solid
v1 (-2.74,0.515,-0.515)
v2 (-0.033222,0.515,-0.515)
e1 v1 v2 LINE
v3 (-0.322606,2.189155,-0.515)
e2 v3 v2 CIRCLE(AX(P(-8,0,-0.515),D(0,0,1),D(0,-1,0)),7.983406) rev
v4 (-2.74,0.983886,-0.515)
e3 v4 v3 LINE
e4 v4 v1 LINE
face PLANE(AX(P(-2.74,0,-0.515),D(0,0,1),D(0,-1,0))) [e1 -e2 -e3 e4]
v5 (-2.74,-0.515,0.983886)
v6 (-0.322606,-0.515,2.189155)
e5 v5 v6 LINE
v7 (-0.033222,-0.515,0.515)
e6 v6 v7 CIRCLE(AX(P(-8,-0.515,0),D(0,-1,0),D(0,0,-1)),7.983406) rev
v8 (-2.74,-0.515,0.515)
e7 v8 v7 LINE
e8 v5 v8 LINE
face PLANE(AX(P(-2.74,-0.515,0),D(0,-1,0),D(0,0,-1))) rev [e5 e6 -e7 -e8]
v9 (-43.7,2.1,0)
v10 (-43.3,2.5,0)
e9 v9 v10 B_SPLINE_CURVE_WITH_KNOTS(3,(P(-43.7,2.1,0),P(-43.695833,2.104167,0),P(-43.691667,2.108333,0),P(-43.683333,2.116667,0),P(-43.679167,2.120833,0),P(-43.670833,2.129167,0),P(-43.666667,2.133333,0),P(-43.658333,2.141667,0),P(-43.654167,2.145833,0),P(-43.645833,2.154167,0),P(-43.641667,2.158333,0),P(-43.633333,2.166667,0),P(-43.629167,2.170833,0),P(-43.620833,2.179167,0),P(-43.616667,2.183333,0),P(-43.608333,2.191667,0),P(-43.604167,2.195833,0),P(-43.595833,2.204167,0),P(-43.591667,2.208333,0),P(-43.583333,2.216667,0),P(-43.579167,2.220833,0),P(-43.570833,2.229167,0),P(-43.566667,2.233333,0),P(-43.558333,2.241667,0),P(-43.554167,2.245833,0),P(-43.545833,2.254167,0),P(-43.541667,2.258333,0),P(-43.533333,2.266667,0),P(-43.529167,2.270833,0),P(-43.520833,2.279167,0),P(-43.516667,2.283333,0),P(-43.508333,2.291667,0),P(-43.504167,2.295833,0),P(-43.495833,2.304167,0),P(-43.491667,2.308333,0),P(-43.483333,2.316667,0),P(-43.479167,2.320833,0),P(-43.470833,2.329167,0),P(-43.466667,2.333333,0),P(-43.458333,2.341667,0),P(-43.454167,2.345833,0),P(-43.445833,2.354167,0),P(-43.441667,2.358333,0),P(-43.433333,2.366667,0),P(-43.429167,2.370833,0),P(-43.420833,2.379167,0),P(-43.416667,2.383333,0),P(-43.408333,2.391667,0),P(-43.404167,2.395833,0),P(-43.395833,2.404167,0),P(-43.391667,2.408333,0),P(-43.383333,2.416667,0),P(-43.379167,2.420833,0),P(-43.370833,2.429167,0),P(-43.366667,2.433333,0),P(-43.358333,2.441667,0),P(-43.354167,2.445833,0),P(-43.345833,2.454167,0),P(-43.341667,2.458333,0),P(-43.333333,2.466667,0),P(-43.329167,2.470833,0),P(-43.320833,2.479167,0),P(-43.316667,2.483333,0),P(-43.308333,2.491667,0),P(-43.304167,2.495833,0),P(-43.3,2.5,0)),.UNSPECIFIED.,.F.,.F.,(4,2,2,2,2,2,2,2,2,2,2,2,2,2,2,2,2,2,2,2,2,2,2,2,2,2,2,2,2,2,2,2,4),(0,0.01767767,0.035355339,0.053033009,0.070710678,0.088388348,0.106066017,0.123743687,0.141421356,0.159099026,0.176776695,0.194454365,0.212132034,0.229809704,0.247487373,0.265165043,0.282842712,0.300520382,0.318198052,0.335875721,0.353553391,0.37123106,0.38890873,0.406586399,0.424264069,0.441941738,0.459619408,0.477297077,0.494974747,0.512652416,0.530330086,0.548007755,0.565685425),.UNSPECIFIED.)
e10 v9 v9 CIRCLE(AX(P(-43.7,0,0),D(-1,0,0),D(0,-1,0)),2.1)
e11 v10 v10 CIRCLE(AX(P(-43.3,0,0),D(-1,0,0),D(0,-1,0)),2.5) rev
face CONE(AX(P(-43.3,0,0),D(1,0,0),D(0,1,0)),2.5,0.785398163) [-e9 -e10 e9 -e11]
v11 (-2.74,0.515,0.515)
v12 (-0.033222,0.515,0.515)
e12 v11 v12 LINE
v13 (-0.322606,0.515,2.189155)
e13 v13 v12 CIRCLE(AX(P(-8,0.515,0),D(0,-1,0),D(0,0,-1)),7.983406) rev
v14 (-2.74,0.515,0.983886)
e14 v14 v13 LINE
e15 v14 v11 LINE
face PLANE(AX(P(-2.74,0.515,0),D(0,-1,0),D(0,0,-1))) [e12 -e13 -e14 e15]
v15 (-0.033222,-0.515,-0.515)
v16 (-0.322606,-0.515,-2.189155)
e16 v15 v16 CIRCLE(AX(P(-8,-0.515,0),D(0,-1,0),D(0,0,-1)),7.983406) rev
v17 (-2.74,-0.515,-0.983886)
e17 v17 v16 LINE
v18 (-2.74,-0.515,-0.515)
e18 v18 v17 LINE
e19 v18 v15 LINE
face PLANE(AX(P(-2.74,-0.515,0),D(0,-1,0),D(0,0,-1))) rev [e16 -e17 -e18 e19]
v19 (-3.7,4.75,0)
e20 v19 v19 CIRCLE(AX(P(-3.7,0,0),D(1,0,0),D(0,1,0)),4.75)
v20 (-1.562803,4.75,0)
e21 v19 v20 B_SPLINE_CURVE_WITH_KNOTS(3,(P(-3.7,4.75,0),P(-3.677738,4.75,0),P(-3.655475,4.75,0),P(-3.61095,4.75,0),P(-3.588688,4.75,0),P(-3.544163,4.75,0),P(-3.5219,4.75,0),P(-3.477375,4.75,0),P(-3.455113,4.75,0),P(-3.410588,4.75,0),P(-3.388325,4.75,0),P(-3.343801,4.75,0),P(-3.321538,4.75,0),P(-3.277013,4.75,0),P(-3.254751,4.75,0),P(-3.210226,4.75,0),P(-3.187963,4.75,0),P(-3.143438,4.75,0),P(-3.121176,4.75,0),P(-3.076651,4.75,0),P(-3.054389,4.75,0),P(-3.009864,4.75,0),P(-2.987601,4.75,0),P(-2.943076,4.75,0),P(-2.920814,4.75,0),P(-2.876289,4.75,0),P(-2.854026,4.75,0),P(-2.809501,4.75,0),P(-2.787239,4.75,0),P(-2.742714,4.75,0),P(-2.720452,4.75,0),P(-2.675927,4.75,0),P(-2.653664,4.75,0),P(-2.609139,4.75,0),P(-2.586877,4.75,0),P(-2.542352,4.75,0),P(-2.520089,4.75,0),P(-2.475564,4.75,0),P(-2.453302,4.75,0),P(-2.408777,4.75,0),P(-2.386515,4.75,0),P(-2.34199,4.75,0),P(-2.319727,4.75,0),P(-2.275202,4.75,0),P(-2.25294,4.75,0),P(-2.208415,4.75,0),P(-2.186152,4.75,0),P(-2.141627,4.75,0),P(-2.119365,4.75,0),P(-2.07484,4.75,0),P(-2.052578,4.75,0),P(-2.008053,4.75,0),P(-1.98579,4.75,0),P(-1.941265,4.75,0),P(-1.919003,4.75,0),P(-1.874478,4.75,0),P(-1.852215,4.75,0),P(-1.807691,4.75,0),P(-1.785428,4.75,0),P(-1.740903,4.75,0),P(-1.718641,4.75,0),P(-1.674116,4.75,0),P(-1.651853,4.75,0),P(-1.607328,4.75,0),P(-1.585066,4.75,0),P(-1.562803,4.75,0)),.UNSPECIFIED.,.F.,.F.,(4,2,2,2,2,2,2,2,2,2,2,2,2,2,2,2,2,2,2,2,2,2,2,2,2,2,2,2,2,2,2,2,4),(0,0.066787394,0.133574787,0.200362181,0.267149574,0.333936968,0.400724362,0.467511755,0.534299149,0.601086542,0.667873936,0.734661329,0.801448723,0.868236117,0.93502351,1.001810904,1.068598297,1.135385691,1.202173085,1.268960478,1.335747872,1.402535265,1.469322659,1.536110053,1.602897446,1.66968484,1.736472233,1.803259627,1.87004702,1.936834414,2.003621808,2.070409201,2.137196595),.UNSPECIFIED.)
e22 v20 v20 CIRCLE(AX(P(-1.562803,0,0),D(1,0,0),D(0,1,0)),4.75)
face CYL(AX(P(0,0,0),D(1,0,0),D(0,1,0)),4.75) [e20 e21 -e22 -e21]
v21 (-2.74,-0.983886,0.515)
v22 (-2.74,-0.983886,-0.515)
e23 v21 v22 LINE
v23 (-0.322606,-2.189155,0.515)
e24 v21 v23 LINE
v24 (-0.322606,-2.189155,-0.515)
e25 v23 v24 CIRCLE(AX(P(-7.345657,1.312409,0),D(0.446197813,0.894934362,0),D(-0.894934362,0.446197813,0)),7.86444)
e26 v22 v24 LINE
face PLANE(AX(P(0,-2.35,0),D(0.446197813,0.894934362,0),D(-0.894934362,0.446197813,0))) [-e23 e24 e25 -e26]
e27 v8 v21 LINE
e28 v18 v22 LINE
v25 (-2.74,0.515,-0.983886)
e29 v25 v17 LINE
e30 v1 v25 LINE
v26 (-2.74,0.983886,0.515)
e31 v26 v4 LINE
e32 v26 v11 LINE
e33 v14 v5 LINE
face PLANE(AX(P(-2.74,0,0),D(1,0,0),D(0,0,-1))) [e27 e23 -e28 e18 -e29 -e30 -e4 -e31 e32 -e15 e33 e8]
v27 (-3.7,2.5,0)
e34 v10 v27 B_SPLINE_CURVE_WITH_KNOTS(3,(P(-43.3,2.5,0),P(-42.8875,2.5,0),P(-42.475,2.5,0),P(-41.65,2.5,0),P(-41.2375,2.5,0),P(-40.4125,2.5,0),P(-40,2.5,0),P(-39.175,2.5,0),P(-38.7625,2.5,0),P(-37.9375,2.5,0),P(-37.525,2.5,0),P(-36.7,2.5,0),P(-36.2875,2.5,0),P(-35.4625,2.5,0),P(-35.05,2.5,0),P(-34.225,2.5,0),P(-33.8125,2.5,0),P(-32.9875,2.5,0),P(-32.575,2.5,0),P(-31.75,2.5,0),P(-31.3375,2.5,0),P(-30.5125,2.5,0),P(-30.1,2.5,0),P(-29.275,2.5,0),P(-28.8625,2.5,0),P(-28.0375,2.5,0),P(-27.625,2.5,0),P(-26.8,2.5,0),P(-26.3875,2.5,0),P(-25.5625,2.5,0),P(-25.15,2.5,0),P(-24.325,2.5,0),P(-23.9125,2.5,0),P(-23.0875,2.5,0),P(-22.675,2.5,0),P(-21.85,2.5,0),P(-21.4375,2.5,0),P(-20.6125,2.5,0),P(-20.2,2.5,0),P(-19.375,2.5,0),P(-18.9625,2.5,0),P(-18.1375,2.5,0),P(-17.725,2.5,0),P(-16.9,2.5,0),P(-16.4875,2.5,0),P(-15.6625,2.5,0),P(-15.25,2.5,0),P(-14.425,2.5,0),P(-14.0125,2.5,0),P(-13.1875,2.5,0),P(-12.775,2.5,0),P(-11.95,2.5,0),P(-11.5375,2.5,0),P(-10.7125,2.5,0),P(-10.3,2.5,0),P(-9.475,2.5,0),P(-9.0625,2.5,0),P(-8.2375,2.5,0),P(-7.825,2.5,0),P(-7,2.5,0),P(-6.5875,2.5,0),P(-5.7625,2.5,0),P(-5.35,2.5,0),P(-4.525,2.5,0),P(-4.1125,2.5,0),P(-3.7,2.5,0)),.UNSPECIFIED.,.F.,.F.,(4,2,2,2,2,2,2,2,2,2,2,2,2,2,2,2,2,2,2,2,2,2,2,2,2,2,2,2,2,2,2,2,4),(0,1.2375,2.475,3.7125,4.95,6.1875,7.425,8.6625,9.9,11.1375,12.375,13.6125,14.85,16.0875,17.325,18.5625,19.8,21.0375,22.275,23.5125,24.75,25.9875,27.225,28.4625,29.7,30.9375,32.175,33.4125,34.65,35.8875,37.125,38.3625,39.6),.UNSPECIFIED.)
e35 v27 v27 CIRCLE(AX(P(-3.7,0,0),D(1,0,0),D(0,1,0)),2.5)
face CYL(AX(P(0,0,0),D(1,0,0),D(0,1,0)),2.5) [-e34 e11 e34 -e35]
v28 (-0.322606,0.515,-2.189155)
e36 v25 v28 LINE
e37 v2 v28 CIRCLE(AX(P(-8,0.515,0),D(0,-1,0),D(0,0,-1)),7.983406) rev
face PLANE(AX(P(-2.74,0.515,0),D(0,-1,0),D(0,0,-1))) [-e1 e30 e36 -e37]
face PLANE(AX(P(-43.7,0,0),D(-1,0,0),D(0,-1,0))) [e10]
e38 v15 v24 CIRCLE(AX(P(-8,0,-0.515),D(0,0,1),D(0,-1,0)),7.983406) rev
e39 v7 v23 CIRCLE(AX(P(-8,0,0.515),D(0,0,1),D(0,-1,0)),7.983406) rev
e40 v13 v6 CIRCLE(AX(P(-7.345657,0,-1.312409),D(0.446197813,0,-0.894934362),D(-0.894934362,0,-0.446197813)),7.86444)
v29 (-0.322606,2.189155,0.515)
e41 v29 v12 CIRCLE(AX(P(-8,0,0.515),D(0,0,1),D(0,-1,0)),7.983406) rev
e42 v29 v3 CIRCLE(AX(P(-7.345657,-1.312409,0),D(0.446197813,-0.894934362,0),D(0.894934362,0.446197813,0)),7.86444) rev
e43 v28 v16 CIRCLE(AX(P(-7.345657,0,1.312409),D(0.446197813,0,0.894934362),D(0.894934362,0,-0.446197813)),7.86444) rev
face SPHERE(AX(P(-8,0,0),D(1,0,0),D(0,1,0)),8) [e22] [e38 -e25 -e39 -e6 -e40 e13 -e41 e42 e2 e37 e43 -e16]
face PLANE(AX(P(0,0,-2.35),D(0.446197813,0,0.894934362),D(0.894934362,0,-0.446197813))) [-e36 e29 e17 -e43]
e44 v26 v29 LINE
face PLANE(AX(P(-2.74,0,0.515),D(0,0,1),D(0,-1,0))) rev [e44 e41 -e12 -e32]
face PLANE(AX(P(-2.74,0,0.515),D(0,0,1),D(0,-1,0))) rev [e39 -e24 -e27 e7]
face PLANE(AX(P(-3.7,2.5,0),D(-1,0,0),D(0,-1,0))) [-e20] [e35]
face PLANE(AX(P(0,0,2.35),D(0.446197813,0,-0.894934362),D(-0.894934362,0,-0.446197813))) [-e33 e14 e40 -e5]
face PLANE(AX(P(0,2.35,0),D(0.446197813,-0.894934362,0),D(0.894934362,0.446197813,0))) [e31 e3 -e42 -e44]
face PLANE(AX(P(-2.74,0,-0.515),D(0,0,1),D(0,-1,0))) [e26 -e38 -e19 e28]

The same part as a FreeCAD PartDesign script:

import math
import FreeCAD as App
import Part
import Sketcher
from FreeCAD import Vector
Q = App.Units.Quantity


def edges_at(feature, points):
    """Names of the edges that pass closest to the given points."""
    edges = feature.Shape.Edges
    near = lambda p: min(range(len(edges)), key=lambda i: edges[i].distToShape(Part.Vertex(*p))[0])
    return sorted({f"Edge{near(p) + 1}" for p in points})


def faces_at(feature, points):
    """Names of the faces that lie closest to the given points."""
    faces = feature.Shape.Faces
    near = lambda p: min(range(len(faces)), key=lambda i: faces[i].distToShape(Part.Vertex(*p))[0])
    return sorted({f"Face{near(p) + 1}" for p in points})

doc = App.newDocument("Part")
params = doc.addObject("Spreadsheet::Sheet", "Params")
for row, (alias, value) in enumerate([
    ("sketch1_radius", "8 mm"),
    ("sketch1_width", "40 mm"),
    ("sketch1_width2", "43.7 mm"),
    ("sketch1_height", "2.5 mm"),
    ("sketch1_height2", "2.25 mm"),
    ("revolution_angle", "360 deg"),
    ("sketch2_width", "1.03 mm"),
    ("pocket1_length", "2.74 mm"),
    ("chamfer_size", "0.4 mm"),
    ("draft_angle", "26.5 deg"),
], start=1):
    params.set(f"A{row}", alias)
    params.set(f"B{row}", "=" + value)
    params.setAlias(f"B{row}", alias)

body = doc.addObject("PartDesign::Body", "Body")

# Sketch on XY plane
sketch1 = body.newObject("Sketcher::SketchObject", "Sketch")
sketch1.AttachmentSupport = (doc.getObject("XY_Plane"), [""])
sketch1.MapMode = "FlatFace"
sketch1.addGeometry([
    Part.LineSegment(Vector(-43.7, 2.5, 0), Vector(-43.7, 0, 0)),  # 0
    Part.LineSegment(Vector(-43.7, 0, 0), Vector(0, 0, 0)),  # 1
    Part.ArcOfCircle(Part.Circle(Vector(-8, 0, 0), Vector(0, 0, 1), 8), math.radians(0), math.radians(36)),  # 2
    Part.LineSegment(Vector(-1.6, 4.8, 0), Vector(-3.7, 4.8, 0)),  # 3
    Part.LineSegment(Vector(-3.7, 4.8, 0), Vector(-3.7, 2.5, 0)),  # 4
    Part.LineSegment(Vector(-3.7, 2.5, 0), Vector(-43.7, 2.5, 0)),  # 5
], False)
sketch1.addConstraint([
    Sketcher.Constraint("Coincident", 0, 2, 1, 1),
    Sketcher.Constraint("Coincident", 1, 2, 2, 1),
    Sketcher.Constraint("Coincident", 2, 2, 3, 1),
    Sketcher.Constraint("Coincident", 3, 2, 4, 1),
    Sketcher.Constraint("Coincident", 4, 2, 5, 1),
    Sketcher.Constraint("Coincident", 5, 2, 0, 1),
    Sketcher.Constraint("Vertical", 0),
    Sketcher.Constraint("Horizontal", 1),
    Sketcher.Constraint("Horizontal", 3),
    Sketcher.Constraint("Vertical", 4),
    Sketcher.Constraint("Horizontal", 5),
    Sketcher.Constraint("Coincident", 1, 2, -1, 1),
    Sketcher.Constraint("PointOnObject", 2, 3, -1),
    Sketcher.Constraint("Radius", 2, Q("8 mm")),
    Sketcher.Constraint("DistanceX", 5, 2, 5, 1, Q("40 mm")),
    Sketcher.Constraint("DistanceX", 1, 1, 1, 2, Q("43.7 mm")),
    Sketcher.Constraint("DistanceY", 0, 2, 0, 1, Q("2.5 mm")),
    Sketcher.Constraint("DistanceY", 4, 2, 4, 1, Q("2.25 mm")),
])
sketch1.setExpression("Constraints[13]", "Params.sketch1_radius")
sketch1.setExpression("Constraints[14]", "Params.sketch1_width")
sketch1.setExpression("Constraints[15]", "Params.sketch1_width2")
sketch1.setExpression("Constraints[16]", "Params.sketch1_height")
sketch1.setExpression("Constraints[17]", "Params.sketch1_height2")
revolution = body.newObject("PartDesign::Revolution", "Revolution")
revolution.Profile = sketch1
revolution.ReferenceAxis = (sketch1, ["H_Axis"])
revolution.setExpression("Angle", "Params.revolution_angle")

# Sketch on YZ plane
sketch2 = body.newObject("Sketcher::SketchObject", "Sketch001")
sketch2.AttachmentSupport = (doc.getObject("YZ_Plane"), [""])
sketch2.MapMode = "FlatFace"
sketch2.addGeometry([
    Part.LineSegment(Vector(0.5, 2.4, 0), Vector(-0.5, 2.4, 0)),  # 0
    Part.LineSegment(Vector(-0.5, 2.4, 0), Vector(-0.5, 0.5, 0)),  # 1
    Part.LineSegment(Vector(-0.5, 0.5, 0), Vector(-2.4, 0.5, 0)),  # 2
    Part.LineSegment(Vector(-2.4, 0.5, 0), Vector(-2.4, -0.5, 0)),  # 3
    Part.LineSegment(Vector(-2.4, -0.5, 0), Vector(-0.5, -0.5, 0)),  # 4
    Part.LineSegment(Vector(-0.5, -0.5, 0), Vector(-0.5, -2.4, 0)),  # 5
    Part.LineSegment(Vector(-0.5, -2.4, 0), Vector(0.5, -2.4, 0)),  # 6
    Part.LineSegment(Vector(0.5, -2.4, 0), Vector(0.5, -0.5, 0)),  # 7
    Part.LineSegment(Vector(0.5, -0.5, 0), Vector(2.4, -0.5, 0)),  # 8
    Part.LineSegment(Vector(2.4, -0.5, 0), Vector(2.4, 0.5, 0)),  # 9
    Part.LineSegment(Vector(2.4, 0.5, 0), Vector(0.5, 0.5, 0)),  # 10
    Part.LineSegment(Vector(0.5, 0.5, 0), Vector(0.5, 2.4, 0)),  # 11
], False)
sketch2.addConstraint([
    Sketcher.Constraint("Coincident", 0, 2, 1, 1),
    Sketcher.Constraint("Coincident", 1, 2, 2, 1),
    Sketcher.Constraint("Coincident", 2, 2, 3, 1),
    Sketcher.Constraint("Coincident", 3, 2, 4, 1),
    Sketcher.Constraint("Coincident", 4, 2, 5, 1),
    Sketcher.Constraint("Coincident", 5, 2, 6, 1),
    Sketcher.Constraint("Coincident", 6, 2, 7, 1),
    Sketcher.Constraint("Coincident", 7, 2, 8, 1),
    Sketcher.Constraint("Coincident", 8, 2, 9, 1),
    Sketcher.Constraint("Coincident", 9, 2, 10, 1),
    Sketcher.Constraint("Coincident", 10, 2, 11, 1),
    Sketcher.Constraint("Coincident", 11, 2, 0, 1),
    Sketcher.Constraint("Horizontal", 0),
    Sketcher.Constraint("Vertical", 1),
    Sketcher.Constraint("Horizontal", 2),
    Sketcher.Constraint("Vertical", 3),
    Sketcher.Constraint("Horizontal", 4),
    Sketcher.Constraint("Vertical", 5),
    Sketcher.Constraint("Horizontal", 6),
    Sketcher.Constraint("Vertical", 7),
    Sketcher.Constraint("Horizontal", 8),
    Sketcher.Constraint("Vertical", 9),
    Sketcher.Constraint("Horizontal", 10),
    Sketcher.Constraint("Vertical", 11),
    Sketcher.Constraint("Symmetric", 0, 2, 6, 2, -1, 1),
    Sketcher.Constraint("Symmetric", 2, 2, 8, 2, -1, 1),
    Sketcher.Constraint("Symmetric", 4, 2, 10, 2, -1, 1),
    Sketcher.Constraint("Symmetric", 4, 2, 7, 2, -2),
    Sketcher.Constraint("Equal", 10, 1),
    Sketcher.Constraint("Equal", 6, 3),
    Sketcher.Constraint("DistanceX", 0, 2, 0, 1, Q("1.03 mm")),
    Sketcher.Constraint("DistanceY", 5, 2, 0, 2, Q("4.7 mm")),
])
sketch2.setExpression("Constraints[30]", "Params.sketch2_width")
pocket1 = body.newObject("PartDesign::Pocket", "Pocket")
pocket1.Profile = sketch2
pocket1.setExpression("Length", "Params.pocket1_length")
doc.recompute()

chamfer = body.newObject("PartDesign::Chamfer", "Chamfer")
chamfer.Base = (pocket1, edges_at(pocket1, [(-43.7, -2.5, 0)]))
chamfer.setExpression("Size", "Params.chamfer_size")
doc.recompute()

draft = body.newObject("PartDesign::Draft", "Draft")
draft.Base = (chamfer, faces_at(chamfer, [
    (-1.546, 0, -2.35),
    (-1.546, -2.35, 0),
    (-1.546, 2.35, 0),
    (-1.546, 0, 2.35),
]))
draft.NeutralPlane = (doc.getObject("YZ_Plane"), [""])
draft.setExpression("Angle", "Params.draft_angle")
draft.Reversed = False

doc.recompute()
